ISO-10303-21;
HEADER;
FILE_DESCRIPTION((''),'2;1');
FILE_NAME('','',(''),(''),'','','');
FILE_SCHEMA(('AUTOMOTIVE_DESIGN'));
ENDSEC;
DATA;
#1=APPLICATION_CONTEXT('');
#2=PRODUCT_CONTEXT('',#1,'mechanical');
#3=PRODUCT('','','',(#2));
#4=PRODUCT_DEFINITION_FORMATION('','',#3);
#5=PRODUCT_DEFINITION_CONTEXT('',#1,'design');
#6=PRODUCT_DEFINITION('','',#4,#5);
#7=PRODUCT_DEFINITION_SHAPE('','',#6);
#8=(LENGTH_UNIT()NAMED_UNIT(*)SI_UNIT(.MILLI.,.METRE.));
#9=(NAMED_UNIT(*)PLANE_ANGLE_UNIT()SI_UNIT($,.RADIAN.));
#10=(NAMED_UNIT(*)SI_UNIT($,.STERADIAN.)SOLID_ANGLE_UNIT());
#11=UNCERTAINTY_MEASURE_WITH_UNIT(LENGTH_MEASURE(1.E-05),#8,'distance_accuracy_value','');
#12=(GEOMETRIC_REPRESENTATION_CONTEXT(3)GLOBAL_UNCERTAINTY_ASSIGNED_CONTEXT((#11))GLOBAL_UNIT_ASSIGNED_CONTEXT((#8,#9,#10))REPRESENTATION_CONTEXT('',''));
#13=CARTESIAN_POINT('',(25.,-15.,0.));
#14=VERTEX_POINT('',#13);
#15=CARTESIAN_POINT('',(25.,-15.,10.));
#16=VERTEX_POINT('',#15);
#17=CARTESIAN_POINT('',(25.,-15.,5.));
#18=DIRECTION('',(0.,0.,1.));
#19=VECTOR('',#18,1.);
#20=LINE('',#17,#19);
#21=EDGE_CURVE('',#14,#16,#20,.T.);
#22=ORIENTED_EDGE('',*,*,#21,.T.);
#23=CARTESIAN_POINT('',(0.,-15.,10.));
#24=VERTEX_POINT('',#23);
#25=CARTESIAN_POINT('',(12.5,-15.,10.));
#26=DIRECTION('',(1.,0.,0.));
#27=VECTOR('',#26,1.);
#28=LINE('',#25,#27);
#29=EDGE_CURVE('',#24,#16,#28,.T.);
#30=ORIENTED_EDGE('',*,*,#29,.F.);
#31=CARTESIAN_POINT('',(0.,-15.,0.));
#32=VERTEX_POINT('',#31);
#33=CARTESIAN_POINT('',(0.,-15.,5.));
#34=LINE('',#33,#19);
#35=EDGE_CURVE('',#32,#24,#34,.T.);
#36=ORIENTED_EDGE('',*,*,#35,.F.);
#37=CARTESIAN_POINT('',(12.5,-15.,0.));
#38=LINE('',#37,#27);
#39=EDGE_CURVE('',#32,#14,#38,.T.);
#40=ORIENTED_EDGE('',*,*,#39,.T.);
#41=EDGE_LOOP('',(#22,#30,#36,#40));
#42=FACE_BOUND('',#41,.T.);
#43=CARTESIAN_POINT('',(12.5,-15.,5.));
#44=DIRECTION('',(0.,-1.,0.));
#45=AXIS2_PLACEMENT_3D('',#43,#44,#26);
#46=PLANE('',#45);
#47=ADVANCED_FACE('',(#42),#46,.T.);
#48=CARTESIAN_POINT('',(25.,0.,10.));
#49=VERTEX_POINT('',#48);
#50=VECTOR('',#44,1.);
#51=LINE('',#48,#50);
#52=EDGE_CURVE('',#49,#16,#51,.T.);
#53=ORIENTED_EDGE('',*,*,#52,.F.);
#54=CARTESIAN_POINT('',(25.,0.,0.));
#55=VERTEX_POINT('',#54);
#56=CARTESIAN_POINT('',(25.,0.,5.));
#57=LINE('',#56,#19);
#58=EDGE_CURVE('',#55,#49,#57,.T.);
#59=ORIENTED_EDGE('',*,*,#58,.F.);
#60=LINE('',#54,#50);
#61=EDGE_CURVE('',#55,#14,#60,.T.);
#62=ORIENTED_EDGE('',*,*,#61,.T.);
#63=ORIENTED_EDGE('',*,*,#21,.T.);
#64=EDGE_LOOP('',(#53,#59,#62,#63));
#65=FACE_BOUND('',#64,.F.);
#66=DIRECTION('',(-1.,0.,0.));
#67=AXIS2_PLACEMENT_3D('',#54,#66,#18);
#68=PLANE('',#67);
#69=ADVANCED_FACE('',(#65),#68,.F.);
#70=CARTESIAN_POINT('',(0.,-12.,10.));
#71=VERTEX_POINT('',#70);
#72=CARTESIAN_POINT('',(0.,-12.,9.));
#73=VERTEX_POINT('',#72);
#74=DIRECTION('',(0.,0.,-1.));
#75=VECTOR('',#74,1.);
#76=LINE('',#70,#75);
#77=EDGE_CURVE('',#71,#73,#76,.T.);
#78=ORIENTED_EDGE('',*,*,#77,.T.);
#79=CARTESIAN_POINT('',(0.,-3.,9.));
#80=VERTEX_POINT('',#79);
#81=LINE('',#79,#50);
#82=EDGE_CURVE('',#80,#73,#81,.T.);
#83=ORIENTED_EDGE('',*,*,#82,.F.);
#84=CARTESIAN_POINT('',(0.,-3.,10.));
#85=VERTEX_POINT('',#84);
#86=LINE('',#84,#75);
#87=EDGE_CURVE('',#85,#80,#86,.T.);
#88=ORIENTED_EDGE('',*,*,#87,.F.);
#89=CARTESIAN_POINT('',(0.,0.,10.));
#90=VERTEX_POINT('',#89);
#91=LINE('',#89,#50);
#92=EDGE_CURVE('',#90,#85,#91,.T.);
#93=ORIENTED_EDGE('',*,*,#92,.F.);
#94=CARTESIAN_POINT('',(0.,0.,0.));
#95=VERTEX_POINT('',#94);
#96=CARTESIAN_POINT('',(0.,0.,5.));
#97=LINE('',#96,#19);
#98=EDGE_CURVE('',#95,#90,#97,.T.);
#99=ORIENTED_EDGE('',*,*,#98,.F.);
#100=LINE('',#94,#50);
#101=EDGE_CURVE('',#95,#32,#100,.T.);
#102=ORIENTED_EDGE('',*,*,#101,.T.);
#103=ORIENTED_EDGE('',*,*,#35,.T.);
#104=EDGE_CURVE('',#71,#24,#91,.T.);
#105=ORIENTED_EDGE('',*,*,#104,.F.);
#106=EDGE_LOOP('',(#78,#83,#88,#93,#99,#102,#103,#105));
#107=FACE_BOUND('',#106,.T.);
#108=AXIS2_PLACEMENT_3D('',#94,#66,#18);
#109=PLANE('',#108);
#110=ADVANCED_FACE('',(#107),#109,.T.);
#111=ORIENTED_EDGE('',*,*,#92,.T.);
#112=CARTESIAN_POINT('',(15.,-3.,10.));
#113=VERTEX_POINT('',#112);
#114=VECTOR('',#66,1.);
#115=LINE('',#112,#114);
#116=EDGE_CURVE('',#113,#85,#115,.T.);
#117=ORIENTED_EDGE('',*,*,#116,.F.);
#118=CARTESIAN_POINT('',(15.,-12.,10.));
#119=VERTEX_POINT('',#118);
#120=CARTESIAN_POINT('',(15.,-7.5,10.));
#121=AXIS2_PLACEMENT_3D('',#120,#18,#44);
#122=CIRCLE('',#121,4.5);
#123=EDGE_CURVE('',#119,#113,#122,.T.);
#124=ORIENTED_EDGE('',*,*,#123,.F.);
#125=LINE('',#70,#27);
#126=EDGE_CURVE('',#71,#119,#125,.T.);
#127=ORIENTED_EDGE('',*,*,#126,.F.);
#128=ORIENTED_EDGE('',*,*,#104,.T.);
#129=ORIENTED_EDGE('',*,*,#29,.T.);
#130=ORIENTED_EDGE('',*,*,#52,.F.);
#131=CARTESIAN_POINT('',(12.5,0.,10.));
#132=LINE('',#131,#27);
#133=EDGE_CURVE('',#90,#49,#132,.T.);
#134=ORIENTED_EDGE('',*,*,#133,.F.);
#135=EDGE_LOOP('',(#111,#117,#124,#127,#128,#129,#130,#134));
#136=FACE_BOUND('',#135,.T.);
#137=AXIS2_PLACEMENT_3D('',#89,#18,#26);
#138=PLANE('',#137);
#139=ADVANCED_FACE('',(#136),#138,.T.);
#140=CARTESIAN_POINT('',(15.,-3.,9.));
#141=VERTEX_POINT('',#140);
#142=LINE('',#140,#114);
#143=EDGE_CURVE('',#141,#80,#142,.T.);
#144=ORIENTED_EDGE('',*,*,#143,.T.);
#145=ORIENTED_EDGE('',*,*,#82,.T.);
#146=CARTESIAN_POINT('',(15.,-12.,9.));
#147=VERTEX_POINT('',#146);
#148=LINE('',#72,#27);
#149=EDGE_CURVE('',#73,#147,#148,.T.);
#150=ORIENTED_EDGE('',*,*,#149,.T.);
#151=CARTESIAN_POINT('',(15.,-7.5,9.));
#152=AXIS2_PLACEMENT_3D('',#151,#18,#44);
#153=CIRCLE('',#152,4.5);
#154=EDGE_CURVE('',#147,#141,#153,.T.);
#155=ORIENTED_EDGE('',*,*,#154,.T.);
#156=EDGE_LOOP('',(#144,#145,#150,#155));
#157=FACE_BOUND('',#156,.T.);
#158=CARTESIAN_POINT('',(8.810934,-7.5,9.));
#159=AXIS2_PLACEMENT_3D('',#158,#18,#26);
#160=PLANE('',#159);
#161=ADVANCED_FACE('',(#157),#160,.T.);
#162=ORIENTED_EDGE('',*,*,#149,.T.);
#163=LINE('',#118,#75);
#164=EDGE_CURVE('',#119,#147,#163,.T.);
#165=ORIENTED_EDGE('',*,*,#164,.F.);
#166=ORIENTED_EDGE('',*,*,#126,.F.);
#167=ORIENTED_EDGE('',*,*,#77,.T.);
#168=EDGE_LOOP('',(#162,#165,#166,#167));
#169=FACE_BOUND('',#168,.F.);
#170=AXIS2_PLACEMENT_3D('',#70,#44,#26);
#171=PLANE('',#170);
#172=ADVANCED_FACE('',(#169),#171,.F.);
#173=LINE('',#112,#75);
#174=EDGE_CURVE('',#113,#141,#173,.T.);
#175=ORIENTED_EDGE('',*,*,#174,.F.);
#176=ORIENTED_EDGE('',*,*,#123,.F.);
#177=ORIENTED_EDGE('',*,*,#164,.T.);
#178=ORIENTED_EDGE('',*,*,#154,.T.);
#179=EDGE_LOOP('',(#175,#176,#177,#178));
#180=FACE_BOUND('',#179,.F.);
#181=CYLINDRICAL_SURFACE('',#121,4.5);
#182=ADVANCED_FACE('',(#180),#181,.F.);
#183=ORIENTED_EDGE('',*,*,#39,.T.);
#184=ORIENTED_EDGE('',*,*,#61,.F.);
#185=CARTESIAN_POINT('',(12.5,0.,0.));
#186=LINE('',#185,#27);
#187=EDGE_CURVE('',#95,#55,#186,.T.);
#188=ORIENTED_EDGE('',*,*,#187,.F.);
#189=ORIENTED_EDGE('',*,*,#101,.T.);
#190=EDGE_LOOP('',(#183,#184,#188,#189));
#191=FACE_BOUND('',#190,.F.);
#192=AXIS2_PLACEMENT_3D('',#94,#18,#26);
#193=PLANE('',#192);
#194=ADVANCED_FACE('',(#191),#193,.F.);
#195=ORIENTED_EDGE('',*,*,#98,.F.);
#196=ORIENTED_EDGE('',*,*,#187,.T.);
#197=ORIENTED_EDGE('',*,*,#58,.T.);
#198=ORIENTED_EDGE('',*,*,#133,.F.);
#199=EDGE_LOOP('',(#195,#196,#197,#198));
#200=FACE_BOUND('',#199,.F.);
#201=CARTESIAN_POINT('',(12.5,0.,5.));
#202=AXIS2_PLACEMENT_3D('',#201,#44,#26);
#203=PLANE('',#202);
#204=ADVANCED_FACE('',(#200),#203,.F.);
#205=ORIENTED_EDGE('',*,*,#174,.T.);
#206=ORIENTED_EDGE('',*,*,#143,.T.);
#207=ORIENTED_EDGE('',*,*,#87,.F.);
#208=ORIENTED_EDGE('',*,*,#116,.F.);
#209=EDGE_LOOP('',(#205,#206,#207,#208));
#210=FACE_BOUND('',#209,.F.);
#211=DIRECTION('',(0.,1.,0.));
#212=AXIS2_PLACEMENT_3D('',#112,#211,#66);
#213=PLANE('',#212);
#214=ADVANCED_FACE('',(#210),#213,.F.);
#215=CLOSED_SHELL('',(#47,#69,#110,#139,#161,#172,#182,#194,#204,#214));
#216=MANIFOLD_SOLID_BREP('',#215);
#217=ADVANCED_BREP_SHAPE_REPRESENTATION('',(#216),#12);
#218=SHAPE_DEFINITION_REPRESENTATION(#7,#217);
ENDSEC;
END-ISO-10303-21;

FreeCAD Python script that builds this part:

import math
import FreeCAD as App
import Part
import Sketcher

V = App.Vector

doc = App.newDocument("Part")
params = doc.addObject("Spreadsheet::Sheet", "Params")
for row, (alias, value) in enumerate([
    ("sketch1_width", "25 mm"),
    ("sketch1_height", "10 mm"),
    ("pad1_length", "15 mm"),
    ("sketch2_radius", "4.5 mm"),
    ("sketch2_width", "15 mm"),
    ("pocket1_length", "1 mm"),
], start=1):
    params.set(f"A{row}", alias)
    params.set(f"B{row}", "=" + value)
    params.setAlias(f"B{row}", alias)

body = doc.addObject("PartDesign::Body", "Body")

# Sketch on XZ plane
sketch1 = doc.addObject("Sketcher::SketchObject", "Sketch")
body.addObject(sketch1)
sketch1.AttachmentSupport = (doc.XZ_Plane, [""])
sketch1.MapMode = "FlatFace"
sketch1.addGeometry([
    Part.LineSegment(V(0, 10, 0), V(0, 0, 0)),
    Part.LineSegment(V(0, 0, 0), V(25, 0, 0)),
    Part.LineSegment(V(25, 0, 0), V(25, 10, 0)),
    Part.LineSegment(V(25, 10, 0), V(0, 10, 0)),
], False)
sketch1.addConstraint([
    Sketcher.Constraint("Coincident", 0, 2, 1, 1),
    Sketcher.Constraint("Coincident", 1, 2, 2, 1),
    Sketcher.Constraint("Coincident", 2, 2, 3, 1),
    Sketcher.Constraint("Coincident", 3, 2, 0, 1),
    Sketcher.Constraint("Vertical", 0),
    Sketcher.Constraint("Horizontal", 1),
    Sketcher.Constraint("Vertical", 2),
    Sketcher.Constraint("Horizontal", 3),
    Sketcher.Constraint("Coincident", 0, 2, -1, 1),
    Sketcher.Constraint("DistanceX", 1, 1, 1, 2, 25.0),
    Sketcher.Constraint("DistanceY", 0, 2, 0, 1, 10.0),
])
sketch1.setExpression("Constraints[9]", "Params.sketch1_width")
sketch1.setExpression("Constraints[10]", "Params.sketch1_height")
pad1 = doc.addObject("PartDesign::Pad", "Pad")
body.addObject(pad1)
pad1.Profile = sketch1
pad1.setExpression("Length", "Params.pad1_length")

# Sketch on XY plane
sketch2 = doc.addObject("Sketcher::SketchObject", "Sketch001")
body.addObject(sketch2)
sketch2.AttachmentSupport = (doc.XY_Plane, [""])
sketch2.MapMode = "FlatFace"
sketch2.AttachmentOffset = App.Placement(V(0, 0, 10), App.Rotation())
sketch2.addGeometry([
    Part.LineSegment(V(15, -3, 0), V(0, -3, 0)),
    Part.LineSegment(V(0, -3, 0), V(0, -12, 0)),
    Part.LineSegment(V(0, -12, 0), V(15, -12, 0)),
    Part.ArcOfCircle(Part.Circle(V(15, -7.5, 0), V(0, 0, 1), 4.5), math.radians(-90), math.radians(90)),
], False)
sketch2.addConstraint([
    Sketcher.Constraint("Coincident", 0, 2, 1, 1),
    Sketcher.Constraint("Coincident", 1, 2, 2, 1),
    Sketcher.Constraint("Tangent", 2, 2, 3, 1),
    Sketcher.Constraint("Tangent", 3, 2, 0, 1),
    Sketcher.Constraint("Horizontal", 0),
    Sketcher.Constraint("Vertical", 1),
    Sketcher.Constraint("Horizontal", 2),
    Sketcher.Constraint("PointOnObject", 0, 2, -2),
    Sketcher.Constraint("Radius", 3, 4.5),
    Sketcher.Constraint("DistanceX", 0, 2, 0, 1, 15.0),
    Sketcher.Constraint("DistanceY", 0, 2, -1, 1, 3.0),
])
sketch2.setExpression("Constraints[8]", "Params.sketch2_radius")
sketch2.setExpression("Constraints[9]", "Params.sketch2_width")
pocket1 = doc.addObject("PartDesign::Pocket", "Pocket")
body.addObject(pocket1)
pocket1.Profile = sketch2
pocket1.setExpression("Length", "Params.pocket1_length")

doc.recompute()
